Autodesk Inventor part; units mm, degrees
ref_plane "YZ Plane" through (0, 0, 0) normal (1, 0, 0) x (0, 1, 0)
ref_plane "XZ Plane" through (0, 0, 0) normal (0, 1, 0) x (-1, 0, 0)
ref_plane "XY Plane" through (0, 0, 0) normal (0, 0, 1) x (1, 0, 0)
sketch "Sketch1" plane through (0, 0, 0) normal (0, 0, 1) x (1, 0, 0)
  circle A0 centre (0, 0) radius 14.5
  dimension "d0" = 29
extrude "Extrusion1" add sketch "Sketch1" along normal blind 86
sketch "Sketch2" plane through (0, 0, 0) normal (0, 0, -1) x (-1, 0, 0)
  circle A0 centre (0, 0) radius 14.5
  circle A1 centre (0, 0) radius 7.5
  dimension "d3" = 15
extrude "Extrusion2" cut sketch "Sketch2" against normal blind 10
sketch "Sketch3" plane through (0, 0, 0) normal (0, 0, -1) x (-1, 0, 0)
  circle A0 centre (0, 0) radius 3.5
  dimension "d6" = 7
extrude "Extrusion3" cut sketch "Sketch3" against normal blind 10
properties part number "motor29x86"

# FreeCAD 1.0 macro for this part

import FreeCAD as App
import Part
import Sketcher

V = App.Vector
Q = App.Units.Quantity

doc = App.newDocument("Part")
body = doc.addObject("PartDesign::Body", "Body")

sketch1 = body.newObject("Sketcher::SketchObject", "Sketch")
sketch1.AttachmentSupport = (doc.getObject("XY_Plane"), [""])
sketch1.MapMode = "FlatFace"
sketch1.addGeometry(Part.Circle(V(0, 0, 0), V(0, 0, 1), 14), False)
sketch1.addConstraint(Sketcher.Constraint("Coincident", 0, 3, -1, 1))
sketch1.addConstraint(Sketcher.Constraint("Diameter", 0, Q("29 mm")))
pad1 = body.newObject("PartDesign::Pad", "Pad")
pad1.Profile = sketch1
pad1.Length = 86

sketch2 = body.newObject("Sketcher::SketchObject", "Sketch001")
sketch2.AttachmentSupport = (doc.getObject("XY_Plane"), [""])
sketch2.MapMode = "FlatFace"
sketch2.addGeometry(Part.Circle(V(0, 0, 0), V(0, 0, 1), 14), False)
sketch2.addGeometry(Part.Circle(V(0, 0, 0), V(0, 0, 1), 8), False)
sketch2.addConstraint(Sketcher.Constraint("Coincident", 0, 3, -1, 1))
sketch2.addConstraint(Sketcher.Constraint("Coincident", 1, 3, -1, 1))
sketch2.addConstraint(Sketcher.Constraint("Diameter", 1, Q("15 mm")))
sketch2.addConstraint(Sketcher.Constraint("Diameter", 0, Q("29 mm")))
pocket1 = body.newObject("PartDesign::Pocket", "Pocket")
pocket1.Profile = sketch2
pocket1.Length = 10
pocket1.Reversed = True

sketch3 = body.newObject("Sketcher::SketchObject", "Sketch002")
sketch3.AttachmentSupport = (doc.getObject("XY_Plane"), [""])
sketch3.MapMode = "FlatFace"
sketch3.addGeometry(Part.Circle(V(0, 0, 0), V(0, 0, 1), 3.5), False)
sketch3.addConstraint(Sketcher.Constraint("Coincident", 0, 3, -1, 1))
sketch3.addConstraint(Sketcher.Constraint("Diameter", 0, Q("7 mm")))
pocket2 = body.newObject("PartDesign::Pocket", "Pocket001")
pocket2.Profile = sketch3
pocket2.Length = 10
pocket2.Reversed = True

doc.recompute()
